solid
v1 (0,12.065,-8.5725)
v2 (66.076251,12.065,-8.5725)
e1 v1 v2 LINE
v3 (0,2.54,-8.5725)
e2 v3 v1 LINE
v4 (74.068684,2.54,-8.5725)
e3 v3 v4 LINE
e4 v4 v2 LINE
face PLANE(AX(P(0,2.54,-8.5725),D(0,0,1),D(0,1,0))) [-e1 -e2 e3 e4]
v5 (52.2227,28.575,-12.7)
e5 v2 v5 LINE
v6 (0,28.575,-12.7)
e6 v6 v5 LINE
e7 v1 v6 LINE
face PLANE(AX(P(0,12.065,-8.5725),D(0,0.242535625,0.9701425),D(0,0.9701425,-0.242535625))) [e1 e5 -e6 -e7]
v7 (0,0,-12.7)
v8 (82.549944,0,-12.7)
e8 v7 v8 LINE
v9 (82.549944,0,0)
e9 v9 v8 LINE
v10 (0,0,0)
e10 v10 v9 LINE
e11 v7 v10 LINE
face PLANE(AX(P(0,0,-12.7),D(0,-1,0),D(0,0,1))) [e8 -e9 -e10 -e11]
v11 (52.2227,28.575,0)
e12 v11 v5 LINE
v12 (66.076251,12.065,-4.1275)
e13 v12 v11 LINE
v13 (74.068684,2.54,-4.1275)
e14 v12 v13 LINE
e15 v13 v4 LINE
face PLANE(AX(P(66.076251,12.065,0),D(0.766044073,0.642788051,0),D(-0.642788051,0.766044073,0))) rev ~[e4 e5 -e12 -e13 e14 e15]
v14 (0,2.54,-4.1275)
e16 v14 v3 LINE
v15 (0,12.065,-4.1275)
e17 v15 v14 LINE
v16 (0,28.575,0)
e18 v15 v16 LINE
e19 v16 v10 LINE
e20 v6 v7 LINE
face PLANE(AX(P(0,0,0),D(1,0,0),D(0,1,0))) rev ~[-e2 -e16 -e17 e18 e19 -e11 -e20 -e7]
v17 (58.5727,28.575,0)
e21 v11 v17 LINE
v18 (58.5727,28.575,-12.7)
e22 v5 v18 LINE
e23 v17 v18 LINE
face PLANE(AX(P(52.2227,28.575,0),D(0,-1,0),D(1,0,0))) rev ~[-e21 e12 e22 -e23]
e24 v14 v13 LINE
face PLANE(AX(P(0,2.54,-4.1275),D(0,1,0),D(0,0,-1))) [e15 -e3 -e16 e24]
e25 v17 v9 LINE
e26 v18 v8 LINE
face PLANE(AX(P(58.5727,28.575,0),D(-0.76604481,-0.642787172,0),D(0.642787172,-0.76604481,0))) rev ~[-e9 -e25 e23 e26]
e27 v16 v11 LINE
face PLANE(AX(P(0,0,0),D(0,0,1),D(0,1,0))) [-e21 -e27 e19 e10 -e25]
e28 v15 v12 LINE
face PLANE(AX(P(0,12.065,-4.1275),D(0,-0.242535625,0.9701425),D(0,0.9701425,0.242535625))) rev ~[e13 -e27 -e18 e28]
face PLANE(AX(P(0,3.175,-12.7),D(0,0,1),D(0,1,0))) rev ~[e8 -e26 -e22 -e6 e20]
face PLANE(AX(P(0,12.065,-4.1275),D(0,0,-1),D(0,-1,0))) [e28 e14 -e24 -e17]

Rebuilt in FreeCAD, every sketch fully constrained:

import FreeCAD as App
import Part
import Sketcher
Q = App.Units.Quantity


def add_polygon(sketch, points):
    """Adds a closed chain of lines whose ends are joined by coincident constraints."""
    first, n = sketch.GeometryCount, len(points)
    for a, b in zip(points, points[1:] + points[:1]):
        sketch.addGeometry(Part.LineSegment(App.Vector(*a, 0), App.Vector(*b, 0)), False)
    for i in range(n):
        sketch.addConstraint(Sketcher.Constraint("Coincident", first + i, 2, first + (i + 1) % n, 1))

doc = App.newDocument("Part")
body = doc.addObject("PartDesign::Body", "Body")

# Sketch on YZ plane
sketch1 = body.newObject("Sketcher::SketchObject", "Sketch")
sketch1.AttachmentSupport = (doc.getObject("YZ_Plane"), [""])
sketch1.MapMode = "FlatFace"
add_polygon(sketch1, [(28.6, 0), (0, 0), (0, -12.7), (28.6, -12.7), (12.1, -8.6), (2.5, -8.6), (2.5, -4.1), (12.1, -4.1)])  # lines 0-7
sketch1.addConstraint([
    Sketcher.Constraint("Horizontal", 0),
    Sketcher.Constraint("Vertical", 1),
    Sketcher.Constraint("Horizontal", 2),
    Sketcher.Constraint("Horizontal", 4),
    Sketcher.Constraint("Vertical", 5),
    Sketcher.Constraint("Horizontal", 6),
    Sketcher.Constraint("Coincident", 0, 2, -1, 1),
    Sketcher.Constraint("Vertical", 3, 2, 6, 2),
    Sketcher.Constraint("Vertical", 2, 2, 7, 2),
    Sketcher.Constraint("Equal", 3, 7),
    Sketcher.Constraint("DistanceY", 1, 2, 1, 1, Q("0.5 in")),
    Sketcher.Constraint("DistanceX", -1, 1, 4, 2, Q("0.1 in")),
    Sketcher.Constraint("Distance", 3, Q("0.67 in")),
    Sketcher.Constraint("DistanceX", 0, 2, 0, 1, Q("1.125 in")),
    Sketcher.Constraint("DistanceX", 4, 2, 4, 1, Q("0.375 in")),
])
pad1 = body.newObject("PartDesign::Pad", "Pad")
pad1.Profile = sketch1
pad1.Length = Q("3.5 in")

# Sketch on XY plane
sketch2 = body.newObject("Sketcher::SketchObject", "Sketch001")
sketch2.AttachmentSupport = (doc.getObject("XY_Plane"), [""])
sketch2.MapMode = "FlatFace"
add_polygon(sketch2, [(52, 29), (76, 0), (89, 0), (89, 29)])  # lines 0-3
sketch2.addConstraint([
    Sketcher.Constraint("Horizontal", 1),
    Sketcher.Constraint("Vertical", 2),
    Sketcher.Constraint("Horizontal", 3),
    Sketcher.Constraint("PointOnObject", 0, 2, -1),
    Sketcher.Constraint("DistanceX", 1, 1, 1, 2, Q("0.5 in")),
    Sketcher.Constraint("DistanceX", -1, 1, 0, 2, Q("3 in")),
    Sketcher.Constraint("Angle", 0, Q("-50 deg")),
    Sketcher.Constraint("DistanceX", 3, 2, 3, 1, Q("1.444 in")),
])
pad2 = body.newObject("PartDesign::Pad", "Pad001")
pad2.Profile = sketch2
pad2.Length = Q("0.5 in")
pad2.Reversed = True

# Sketch on XY plane
sketch3 = body.newObject("Sketcher::SketchObject", "Sketch002")
sketch3.AttachmentSupport = (doc.getObject("XY_Plane"), [""])
sketch3.MapMode = "FlatFace"
add_polygon(sketch3, [(62, 33), (59, 29), (90, -8), (99, 13), (87, 40)])  # lines 0-4
sketch3.addConstraint([
    Sketcher.Constraint("Angle", 1, Q("-50 deg")),
    Sketcher.Constraint("Angle", 0, Q("-125.3091 deg")),
    Sketcher.Constraint("Angle", 4, Q("-165.329 deg")),
    Sketcher.Constraint("DistanceX", -1, 1, 0, 2, Q("2.306 in")),
    Sketcher.Constraint("DistanceY", -1, 1, 0, 2, Q("1.125 in")),
    Sketcher.Constraint("DistanceY", -1, 1, 4, 2, Q("1.303 in")),
    Sketcher.Constraint("DistanceX", -1, 1, 1, 2, Q("3.5287 in")),
    Sketcher.Constraint("DistanceY", -1, 1, 3, 2, Q("1.5639 in")),
    Sketcher.Constraint("Distance", 2, 23.3439),
    Sketcher.Constraint("Distance", 3, 29.6075),
])
pocket1 = body.newObject("PartDesign::Pocket", "Pocket")
pocket1.Profile = sketch3
pocket1.Length = Q("0.5 in")

doc.recompute()
